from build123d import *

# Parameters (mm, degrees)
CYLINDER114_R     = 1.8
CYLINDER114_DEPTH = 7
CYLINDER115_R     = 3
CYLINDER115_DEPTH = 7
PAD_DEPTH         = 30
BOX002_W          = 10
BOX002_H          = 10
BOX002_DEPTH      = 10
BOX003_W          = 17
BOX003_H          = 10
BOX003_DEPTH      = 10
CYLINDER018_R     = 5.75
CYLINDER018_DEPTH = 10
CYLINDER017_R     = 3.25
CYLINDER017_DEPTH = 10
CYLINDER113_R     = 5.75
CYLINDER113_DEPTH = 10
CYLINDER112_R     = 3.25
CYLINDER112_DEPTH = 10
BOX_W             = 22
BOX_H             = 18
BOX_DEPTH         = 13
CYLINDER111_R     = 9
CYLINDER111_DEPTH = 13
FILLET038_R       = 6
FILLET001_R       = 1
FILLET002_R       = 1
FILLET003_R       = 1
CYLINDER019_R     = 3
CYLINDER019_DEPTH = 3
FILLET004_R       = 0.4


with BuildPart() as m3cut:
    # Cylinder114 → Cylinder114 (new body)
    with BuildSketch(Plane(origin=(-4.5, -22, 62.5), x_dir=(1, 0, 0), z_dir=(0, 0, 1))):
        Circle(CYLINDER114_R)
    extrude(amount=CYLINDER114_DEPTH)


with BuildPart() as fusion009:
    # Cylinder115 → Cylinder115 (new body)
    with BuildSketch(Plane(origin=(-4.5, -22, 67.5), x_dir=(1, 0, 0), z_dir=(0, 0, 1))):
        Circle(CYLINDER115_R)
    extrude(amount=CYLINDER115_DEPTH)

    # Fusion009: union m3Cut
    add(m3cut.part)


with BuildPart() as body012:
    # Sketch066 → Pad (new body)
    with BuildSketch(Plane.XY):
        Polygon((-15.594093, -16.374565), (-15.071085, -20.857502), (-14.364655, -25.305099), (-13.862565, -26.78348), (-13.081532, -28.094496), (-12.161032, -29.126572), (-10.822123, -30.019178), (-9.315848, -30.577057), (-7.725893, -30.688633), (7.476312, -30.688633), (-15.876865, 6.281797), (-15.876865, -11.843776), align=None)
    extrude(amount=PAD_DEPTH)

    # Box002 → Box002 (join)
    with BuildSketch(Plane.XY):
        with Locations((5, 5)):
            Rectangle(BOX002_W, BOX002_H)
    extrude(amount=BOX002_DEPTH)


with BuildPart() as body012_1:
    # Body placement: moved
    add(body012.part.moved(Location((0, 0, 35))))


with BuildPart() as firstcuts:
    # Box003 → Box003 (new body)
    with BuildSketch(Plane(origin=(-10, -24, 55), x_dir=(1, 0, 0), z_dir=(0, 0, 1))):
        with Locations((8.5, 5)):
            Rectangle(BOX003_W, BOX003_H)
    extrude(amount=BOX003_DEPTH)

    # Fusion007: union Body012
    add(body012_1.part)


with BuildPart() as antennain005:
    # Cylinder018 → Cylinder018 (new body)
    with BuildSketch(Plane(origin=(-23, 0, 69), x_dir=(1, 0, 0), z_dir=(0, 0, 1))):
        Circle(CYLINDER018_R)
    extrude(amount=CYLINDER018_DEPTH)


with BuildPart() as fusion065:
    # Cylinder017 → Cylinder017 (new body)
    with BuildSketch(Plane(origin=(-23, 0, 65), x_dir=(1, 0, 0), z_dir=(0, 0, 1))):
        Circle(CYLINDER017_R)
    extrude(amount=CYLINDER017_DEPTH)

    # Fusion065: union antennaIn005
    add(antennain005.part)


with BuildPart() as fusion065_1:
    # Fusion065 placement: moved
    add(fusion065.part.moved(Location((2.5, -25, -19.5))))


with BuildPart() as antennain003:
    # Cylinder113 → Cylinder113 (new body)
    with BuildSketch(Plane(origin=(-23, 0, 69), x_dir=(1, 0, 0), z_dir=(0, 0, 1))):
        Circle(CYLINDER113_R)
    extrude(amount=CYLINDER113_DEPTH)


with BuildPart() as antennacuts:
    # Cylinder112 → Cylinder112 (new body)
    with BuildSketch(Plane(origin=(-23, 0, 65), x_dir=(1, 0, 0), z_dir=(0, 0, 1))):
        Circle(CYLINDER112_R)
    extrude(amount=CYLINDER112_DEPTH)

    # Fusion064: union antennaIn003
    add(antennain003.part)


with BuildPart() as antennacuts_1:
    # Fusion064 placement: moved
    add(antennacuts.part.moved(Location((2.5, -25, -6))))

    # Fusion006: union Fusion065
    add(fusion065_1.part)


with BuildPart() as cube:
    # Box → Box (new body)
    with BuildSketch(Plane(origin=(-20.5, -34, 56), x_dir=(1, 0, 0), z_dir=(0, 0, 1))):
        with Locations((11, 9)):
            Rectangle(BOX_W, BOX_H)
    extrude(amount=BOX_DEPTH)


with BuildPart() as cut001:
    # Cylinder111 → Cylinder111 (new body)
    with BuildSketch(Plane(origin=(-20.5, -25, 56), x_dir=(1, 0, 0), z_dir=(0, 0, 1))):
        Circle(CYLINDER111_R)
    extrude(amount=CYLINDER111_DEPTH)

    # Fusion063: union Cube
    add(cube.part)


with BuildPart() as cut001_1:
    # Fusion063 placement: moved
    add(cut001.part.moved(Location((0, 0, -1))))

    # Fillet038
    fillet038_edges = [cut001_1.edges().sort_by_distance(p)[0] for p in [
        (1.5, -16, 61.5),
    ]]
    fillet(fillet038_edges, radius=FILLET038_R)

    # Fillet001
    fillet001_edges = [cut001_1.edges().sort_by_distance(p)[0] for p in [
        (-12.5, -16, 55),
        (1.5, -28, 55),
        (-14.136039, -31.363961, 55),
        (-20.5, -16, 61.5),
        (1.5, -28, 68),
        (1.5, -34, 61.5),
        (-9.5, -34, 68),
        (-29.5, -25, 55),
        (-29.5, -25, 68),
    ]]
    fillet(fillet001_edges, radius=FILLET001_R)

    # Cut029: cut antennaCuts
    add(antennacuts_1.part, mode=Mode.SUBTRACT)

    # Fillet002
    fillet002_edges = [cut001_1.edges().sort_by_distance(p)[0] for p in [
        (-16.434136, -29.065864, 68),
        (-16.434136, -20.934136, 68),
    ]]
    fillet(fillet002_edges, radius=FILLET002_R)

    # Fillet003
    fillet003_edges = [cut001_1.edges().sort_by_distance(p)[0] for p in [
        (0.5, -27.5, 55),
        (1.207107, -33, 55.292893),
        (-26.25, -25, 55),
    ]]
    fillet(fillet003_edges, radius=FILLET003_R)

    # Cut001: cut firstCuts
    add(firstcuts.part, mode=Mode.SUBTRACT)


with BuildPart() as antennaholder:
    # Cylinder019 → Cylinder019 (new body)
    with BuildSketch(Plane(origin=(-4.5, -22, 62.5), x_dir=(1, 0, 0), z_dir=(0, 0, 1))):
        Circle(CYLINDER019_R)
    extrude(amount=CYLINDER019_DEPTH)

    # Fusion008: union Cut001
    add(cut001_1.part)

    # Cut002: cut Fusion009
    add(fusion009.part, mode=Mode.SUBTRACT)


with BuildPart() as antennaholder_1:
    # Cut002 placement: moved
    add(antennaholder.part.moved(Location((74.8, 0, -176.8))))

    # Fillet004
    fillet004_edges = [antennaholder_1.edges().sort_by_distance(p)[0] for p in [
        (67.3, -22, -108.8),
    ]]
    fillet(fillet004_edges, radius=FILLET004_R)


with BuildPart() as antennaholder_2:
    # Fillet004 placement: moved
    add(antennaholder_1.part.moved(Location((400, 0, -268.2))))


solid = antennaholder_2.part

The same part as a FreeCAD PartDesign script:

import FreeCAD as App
import Part
import Sketcher
from FreeCAD import Vector


def edges_at(feature, points):
    """Names of the edges that pass closest to the given points."""
    edges = feature.Shape.Edges
    near = lambda p: min(range(len(edges)), key=lambda i: edges[i].distToShape(Part.Vertex(*p))[0])
    return sorted({f"Edge{near(p) + 1}" for p in points})


def add_polygon(sketch, points):
    """Adds a closed chain of lines whose ends are joined by coincident constraints."""
    first, n = sketch.GeometryCount, len(points)
    for a, b in zip(points, points[1:] + points[:1]):
        sketch.addGeometry(Part.LineSegment(App.Vector(*a, 0), App.Vector(*b, 0)), False)
    for i in range(n):
        sketch.addConstraint(Sketcher.Constraint("Coincident", first + i, 2, first + (i + 1) % n, 1))

doc = App.newDocument("Part")
body = doc.addObject("PartDesign::Body", "Body")

sketch1 = body.newObject("Sketcher::SketchObject", "Sketch")
sketch1.AttachmentSupport = (doc.getObject("XY_Plane"), [""])
sketch1.MapMode = "FlatFace"
sketch1.AttachmentOffset = App.Placement(Vector(0, 0, 62.5), App.Rotation())
sketch1.addGeometry(Part.Circle(Vector(-4.5, -22, 0), Vector(0, 0, 1), 1.8), False)
sketch1.addConstraint([
    Sketcher.Constraint("Diameter", 0, 3.6),
    Sketcher.Constraint("DistanceY", 0, 3, -1, 1, 22.0),
    Sketcher.Constraint("DistanceX", 0, 3, -1, 1, 4.5),
])
pad1 = body.newObject("PartDesign::Pad", "Pad")
pad1.Profile = sketch1
pad1.Length = 7
body2 = doc.addObject("PartDesign::Body", "Body001")

sketch2 = body2.newObject("Sketcher::SketchObject", "Sketch001")
sketch2.AttachmentSupport = (doc.getObject("XY_Plane001"), [""])
sketch2.MapMode = "FlatFace"
sketch2.AttachmentOffset = App.Placement(Vector(0, 0, 67.5), App.Rotation())
sketch2.addGeometry(Part.Circle(Vector(-4.5, -22, 0), Vector(0, 0, 1), 3), False)
sketch2.addConstraint([
    Sketcher.Constraint("Diameter", 0, 6.0),
    Sketcher.Constraint("DistanceY", 0, 3, -1, 1, 22.0),
    Sketcher.Constraint("DistanceX", 0, 3, -1, 1, 4.5),
])
pad2 = body2.newObject("PartDesign::Pad", "Pad001")
pad2.Profile = sketch2
pad2.Length = 7
doc.recompute()

boolean = body2.newObject("PartDesign::Boolean", "Boolean")
boolean.Type = "Fuse"
boolean.addObjects([body])
body3 = doc.addObject("PartDesign::Body", "Body002")
body3.AllowCompound = True

sketch3 = body3.newObject("Sketcher::SketchObject", "Sketch002")
sketch3.AttachmentSupport = (doc.getObject("XY_Plane002"), [""])
sketch3.MapMode = "FlatFace"
add_polygon(sketch3, [(-15.594093, -16.374565), (-15.071085, -20.857502), (-14.364655, -25.305099), (-13.862565, -26.78348), (-13.081532, -28.094496), (-12.161032, -29.126572), (-10.822123, -30.019178), (-9.315848, -30.577057), (-7.725893, -30.688633), (7.476312, -30.688633), (-15.876865, 6.281797), (-15.876865, -11.843776)])
sketch3.addConstraint([
    Sketcher.Constraint("Horizontal", 8),
    Sketcher.Constraint("Vertical", 10),
    Sketcher.Constraint("DistanceY", 0, 2, -1, 1, 20.857502),
    Sketcher.Constraint("DistanceY", 1, 2, -1, 1, 25.305099),
    Sketcher.Constraint("DistanceX", 3, 2, 4, 2, 0.9205),
    Sketcher.Constraint("DistanceY", 0, 2, 9, 2, 27.139299),
    Sketcher.Constraint("DistanceX", 9, 2, 2, 2, 2.0143),
    Sketcher.Constraint("Distance", 1, 4.50335),
    Sketcher.Constraint("Distance", 5, 1.609168),
    Sketcher.Constraint("Distance", 9, 43.728521),
    Sketcher.Constraint("DistanceX", 8, 1, 8, 2, 15.202205),
    Sketcher.Constraint("DistanceY", 10, 2, 10, 1, 18.125573),
    Sketcher.Constraint("DistanceY", 2, 2, -1, 1, 26.78348),
    Sketcher.Constraint("DistanceX", 3, 2, -1, 1, 13.081532),
    Sketcher.Constraint("DistanceY", 4, 2, -1, 1, 29.126572),
    Sketcher.Constraint("DistanceY", 5, 2, -1, 1, 30.019178),
    Sketcher.Constraint("DistanceX", 6, 2, -1, 1, 9.315848),
    Sketcher.Constraint("DistanceX", 1, 2, 2, 2, 0.50209),
    Sketcher.Constraint("DistanceY", 6, 2, 5, 2, 0.557879),
    Sketcher.Constraint("DistanceY", 6, 2, 3, 2, 2.482561),
    Sketcher.Constraint("DistanceX", 5, 2, 7, 2, 3.09623),
    Sketcher.Constraint("DistanceY", 7, 2, 4, 2, 1.562061),
    Sketcher.Constraint("DistanceX", 11, 2, 0, 2, 0.523008),
    Sketcher.Constraint("DistanceY", 11, 2, 10, 2, 4.530789),
])
pad3 = body3.newObject("PartDesign::Pad", "Pad002")
pad3.Profile = sketch3
pad3.Length = 30

sketch4 = body3.newObject("Sketcher::SketchObject", "Sketch003")
sketch4.AttachmentSupport = (doc.getObject("XY_Plane002"), [""])
sketch4.MapMode = "FlatFace"
add_polygon(sketch4, [(0, 10), (0, 0), (10, 0), (10, 10)])
sketch4.addConstraint([
    Sketcher.Constraint("Vertical", 0),
    Sketcher.Constraint("Horizontal", 1),
    Sketcher.Constraint("Vertical", 2),
    Sketcher.Constraint("Horizontal", 3),
    Sketcher.Constraint("Coincident", 0, 2, -1, 1),
    Sketcher.Constraint("Equal", 3, 0),
    Sketcher.Constraint("DistanceX", 1, 1, 1, 2, 10.0),
])
pad4 = body3.newObject("PartDesign::Pad", "Pad003")
pad4.Profile = sketch4
pad4.Length = 10
body4 = doc.addObject("PartDesign::Body", "Body003")
body4.AllowCompound = True
doc.recompute()

body3.Placement = App.Placement(Vector(0, 0, 35), App.Rotation(Vector(0, 0, 1), 0))
boolean2 = body4.newObject("PartDesign::Boolean", "Boolean001")
boolean2.Type = "Fuse"
boolean2.addObjects([body3])
body5 = doc.addObject("PartDesign::Body", "Body004")
body5.AllowCompound = True

sketch5 = body5.newObject("Sketcher::SketchObject", "Sketch004")
sketch5.AttachmentSupport = (doc.getObject("XY_Plane004"), [""])
sketch5.MapMode = "FlatFace"
sketch5.AttachmentOffset = App.Placement(Vector(0, 0, 55), App.Rotation())
add_polygon(sketch5, [(-10, -14), (-10, -24), (7, -24), (7, -14)])
sketch5.addConstraint([
    Sketcher.Constraint("Vertical", 0),
    Sketcher.Constraint("Horizontal", 1),
    Sketcher.Constraint("Vertical", 2),
    Sketcher.Constraint("Horizontal", 3),
    Sketcher.Constraint("DistanceX", 1, 1, 1, 2, 17.0),
    Sketcher.Constraint("DistanceY", 0, 2, 0, 1, 10.0),
    Sketcher.Constraint("DistanceX", 0, 2, -1, 1, 10.0),
    Sketcher.Constraint("DistanceY", 0, 2, -1, 1, 24.0),
])
pad5 = body5.newObject("PartDesign::Pad", "Pad004")
pad5.Profile = sketch5
pad5.Length = 10
doc.recompute()

boolean3 = body5.newObject("PartDesign::Boolean", "Boolean002")
boolean3.Type = "Fuse"
boolean3.addObjects([body4])
body6 = doc.addObject("PartDesign::Body", "Body005")

sketch6 = body6.newObject("Sketcher::SketchObject", "Sketch005")
sketch6.AttachmentSupport = (doc.getObject("XY_Plane005"), [""])
sketch6.MapMode = "FlatFace"
sketch6.AttachmentOffset = App.Placement(Vector(0, 0, 69), App.Rotation())
sketch6.addGeometry(Part.Circle(Vector(-23, 0, 0), Vector(0, 0, 1), 5.75), False)
sketch6.addConstraint([
    Sketcher.Constraint("PointOnObject", 0, 3, -1),
    Sketcher.Constraint("Diameter", 0, 11.5),
    Sketcher.Constraint("DistanceX", 0, 3, -1, 1, 23.0),
])
pad6 = body6.newObject("PartDesign::Pad", "Pad005")
pad6.Profile = sketch6
pad6.Length = 10
body7 = doc.addObject("PartDesign::Body", "Body006")

sketch7 = body7.newObject("Sketcher::SketchObject", "Sketch006")
sketch7.AttachmentSupport = (doc.getObject("XY_Plane006"), [""])
sketch7.MapMode = "FlatFace"
sketch7.AttachmentOffset = App.Placement(Vector(0, 0, 65), App.Rotation())
sketch7.addGeometry(Part.Circle(Vector(-23, 0, 0), Vector(0, 0, 1), 3.25), False)
sketch7.addConstraint([
    Sketcher.Constraint("PointOnObject", 0, 3, -1),
    Sketcher.Constraint("Diameter", 0, 6.5),
    Sketcher.Constraint("DistanceX", 0, 3, -1, 1, 23.0),
])
pad7 = body7.newObject("PartDesign::Pad", "Pad006")
pad7.Profile = sketch7
pad7.Length = 10
doc.recompute()

boolean4 = body7.newObject("PartDesign::Boolean", "Boolean003")
boolean4.Type = "Fuse"
boolean4.addObjects([body6])
body8 = doc.addObject("PartDesign::Body", "Body007")
doc.recompute()

body7.Placement = App.Placement(Vector(2.5, -25, -19.5), App.Rotation(Vector(0, 0, 1), 0))
boolean5 = body8.newObject("PartDesign::Boolean", "Boolean004")
boolean5.Type = "Fuse"
boolean5.addObjects([body7])
body9 = doc.addObject("PartDesign::Body", "Body008")

sketch8 = body9.newObject("Sketcher::SketchObject", "Sketch007")
sketch8.AttachmentSupport = (doc.getObject("XY_Plane008"), [""])
sketch8.MapMode = "FlatFace"
sketch8.AttachmentOffset = App.Placement(Vector(0, 0, 69), App.Rotation())
sketch8.addGeometry(Part.Circle(Vector(-23, 0, 0), Vector(0, 0, 1), 5.75), False)
sketch8.addConstraint([
    Sketcher.Constraint("PointOnObject", 0, 3, -1),
    Sketcher.Constraint("Diameter", 0, 11.5),
    Sketcher.Constraint("DistanceX", 0, 3, -1, 1, 23.0),
])
pad8 = body9.newObject("PartDesign::Pad", "Pad007")
pad8.Profile = sketch8
pad8.Length = 10
body10 = doc.addObject("PartDesign::Body", "Body009")

sketch9 = body10.newObject("Sketcher::SketchObject", "Sketch008")
sketch9.AttachmentSupport = (doc.getObject("XY_Plane009"), [""])
sketch9.MapMode = "FlatFace"
sketch9.AttachmentOffset = App.Placement(Vector(0, 0, 65), App.Rotation())
sketch9.addGeometry(Part.Circle(Vector(-23, 0, 0), Vector(0, 0, 1), 3.25), False)
sketch9.addConstraint([
    Sketcher.Constraint("PointOnObject", 0, 3, -1),
    Sketcher.Constraint("Diameter", 0, 6.5),
    Sketcher.Constraint("DistanceX", 0, 3, -1, 1, 23.0),
])
pad9 = body10.newObject("PartDesign::Pad", "Pad008")
pad9.Profile = sketch9
pad9.Length = 10
doc.recompute()

boolean6 = body10.newObject("PartDesign::Boolean", "Boolean005")
boolean6.Type = "Fuse"
boolean6.addObjects([body9])
body11 = doc.addObject("PartDesign::Body", "Body010")
doc.recompute()

body10.Placement = App.Placement(Vector(2.5, -25, -6), App.Rotation(Vector(0, 0, 1), 0))
boolean7 = body11.newObject("PartDesign::Boolean", "Boolean006")
boolean7.Type = "Fuse"
boolean7.addObjects([body10])
doc.recompute()

boolean8 = body11.newObject("PartDesign::Boolean", "Boolean007")
boolean8.Type = "Fuse"
boolean8.addObjects([body8])
body12 = doc.addObject("PartDesign::Body", "Body011")

sketch10 = body12.newObject("Sketcher::SketchObject", "Sketch009")
sketch10.AttachmentSupport = (doc.getObject("XY_Plane011"), [""])
sketch10.MapMode = "FlatFace"
sketch10.AttachmentOffset = App.Placement(Vector(0, 0, 56), App.Rotation())
add_polygon(sketch10, [(-20.5, -16), (-20.5, -34), (1.5, -34), (1.5, -16)])
sketch10.addConstraint([
    Sketcher.Constraint("Vertical", 0),
    Sketcher.Constraint("Horizontal", 1),
    Sketcher.Constraint("Vertical", 2),
    Sketcher.Constraint("Horizontal", 3),
    Sketcher.Constraint("DistanceX", 1, 1, 1, 2, 22.0),
    Sketcher.Constraint("DistanceY", 0, 2, 0, 1, 18.0),
    Sketcher.Constraint("DistanceY", 0, 2, -1, 1, 34.0),
    Sketcher.Constraint("DistanceX", 0, 2, -1, 1, 20.5),
])
pad10 = body12.newObject("PartDesign::Pad", "Pad009")
pad10.Profile = sketch10
pad10.Length = 13
body13 = doc.addObject("PartDesign::Body", "Body012")

sketch11 = body13.newObject("Sketcher::SketchObject", "Sketch010")
sketch11.AttachmentSupport = (doc.getObject("XY_Plane012"), [""])
sketch11.MapMode = "FlatFace"
sketch11.AttachmentOffset = App.Placement(Vector(0, 0, 56), App.Rotation())
sketch11.addGeometry(Part.Circle(Vector(-20.5, -25, 0), Vector(0, 0, 1), 9), False)
sketch11.addConstraint([
    Sketcher.Constraint("Diameter", 0, 18.0),
    Sketcher.Constraint("DistanceY", 0, 3, -1, 1, 25.0),
    Sketcher.Constraint("DistanceX", 0, 3, -1, 1, 20.5),
])
pad11 = body13.newObject("PartDesign::Pad", "Pad010")
pad11.Profile = sketch11
pad11.Length = 13
doc.recompute()

boolean9 = body13.newObject("PartDesign::Boolean", "Boolean008")
boolean9.Type = "Fuse"
boolean9.addObjects([body12])
body14 = doc.addObject("PartDesign::Body", "Body013")
doc.recompute()

body13.Placement = App.Placement(Vector(0, 0, -1), App.Rotation(Vector(0, 0, 1), 0))
boolean10 = body14.newObject("PartDesign::Boolean", "Boolean009")
boolean10.Type = "Fuse"
boolean10.addObjects([body13])
doc.recompute()

fillet = body14.newObject("PartDesign::Fillet", "Fillet")
fillet.Base = (boolean10, edges_at(boolean10, [(1.5, -16, 61.5)]))
fillet.Radius = 6
doc.recompute()

fillet2 = body14.newObject("PartDesign::Fillet", "Fillet001")
fillet2.Base = (fillet, edges_at(fillet, [
    (-12.5, -16, 55),
    (1.5, -28, 55),
    (-9.5, -34, 55),
    (-20.5, -16, 61.5),
    (1.5, -28, 68),
    (1.5, -34, 61.5),
    (-9.5, -34, 68),
    (-29.5, -25, 55),
    (-29.5, -25, 68),
]))
fillet2.Radius = 1
doc.recompute()

boolean11 = body14.newObject("PartDesign::Boolean", "Boolean010")
boolean11.Type = "Cut"
boolean11.addObjects([body11])
doc.recompute()

fillet3 = body14.newObject("PartDesign::Fillet", "Fillet002")
fillet3.Base = (boolean11, edges_at(boolean11, [(-26.25, -25, 68), (-26.25, -25, 68)]))
fillet3.Radius = 1
doc.recompute()

fillet4 = body14.newObject("PartDesign::Fillet", "Fillet003")
fillet4.Base = (fillet3, edges_at(fillet3, [(0.5, -27.5, 55), (1.207, -33, 55.293), (-26.25, -25, 55)]))
fillet4.Radius = 1
doc.recompute()

boolean12 = body14.newObject("PartDesign::Boolean", "Boolean011")
boolean12.Type = "Cut"
boolean12.addObjects([body5])
body15 = doc.addObject("PartDesign::Body", "Body014")

sketch12 = body15.newObject("Sketcher::SketchObject", "Sketch011")
sketch12.AttachmentSupport = (doc.getObject("XY_Plane014"), [""])
sketch12.MapMode = "FlatFace"
sketch12.AttachmentOffset = App.Placement(Vector(0, 0, 62.5), App.Rotation())
sketch12.addGeometry(Part.Circle(Vector(-4.5, -22, 0), Vector(0, 0, 1), 3), False)
sketch12.addConstraint([
    Sketcher.Constraint("Diameter", 0, 6.0),
    Sketcher.Constraint("DistanceY", 0, 3, -1, 1, 22.0),
    Sketcher.Constraint("DistanceX", 0, 3, -1, 1, 4.5),
])
pad12 = body15.newObject("PartDesign::Pad", "Pad011")
pad12.Profile = sketch12
pad12.Length = 3
doc.recompute()

boolean13 = body15.newObject("PartDesign::Boolean", "Boolean012")
boolean13.Type = "Fuse"
boolean13.addObjects([body14])
doc.recompute()

boolean14 = body15.newObject("PartDesign::Boolean", "Boolean013")
boolean14.Type = "Cut"
boolean14.addObjects([body2])
body16 = doc.addObject("PartDesign::Body", "Body015")
doc.recompute()

body15.Placement = App.Placement(Vector(74.8, 0, -176.8), App.Rotation(Vector(0, 0, 1), 0))
boolean15 = body16.newObject("PartDesign::Boolean", "Boolean014")
boolean15.Type = "Fuse"
boolean15.addObjects([body15])
doc.recompute()

fillet5 = body16.newObject("PartDesign::Fillet", "Fillet004")
fillet5.Base = (boolean15, edges_at(boolean15, [(67.3, -22, -108.8)]))
fillet5.Radius = 0.4
body17 = doc.addObject("PartDesign::Body", "Body016")
doc.recompute()

body16.Placement = App.Placement(Vector(400, 0, -268.2), App.Rotation(Vector(0, 0, 1), 0))
boolean16 = body17.newObject("PartDesign::Boolean", "Boolean015")
boolean16.Type = "Fuse"
boolean16.addObjects([body16])

doc.recompute()
